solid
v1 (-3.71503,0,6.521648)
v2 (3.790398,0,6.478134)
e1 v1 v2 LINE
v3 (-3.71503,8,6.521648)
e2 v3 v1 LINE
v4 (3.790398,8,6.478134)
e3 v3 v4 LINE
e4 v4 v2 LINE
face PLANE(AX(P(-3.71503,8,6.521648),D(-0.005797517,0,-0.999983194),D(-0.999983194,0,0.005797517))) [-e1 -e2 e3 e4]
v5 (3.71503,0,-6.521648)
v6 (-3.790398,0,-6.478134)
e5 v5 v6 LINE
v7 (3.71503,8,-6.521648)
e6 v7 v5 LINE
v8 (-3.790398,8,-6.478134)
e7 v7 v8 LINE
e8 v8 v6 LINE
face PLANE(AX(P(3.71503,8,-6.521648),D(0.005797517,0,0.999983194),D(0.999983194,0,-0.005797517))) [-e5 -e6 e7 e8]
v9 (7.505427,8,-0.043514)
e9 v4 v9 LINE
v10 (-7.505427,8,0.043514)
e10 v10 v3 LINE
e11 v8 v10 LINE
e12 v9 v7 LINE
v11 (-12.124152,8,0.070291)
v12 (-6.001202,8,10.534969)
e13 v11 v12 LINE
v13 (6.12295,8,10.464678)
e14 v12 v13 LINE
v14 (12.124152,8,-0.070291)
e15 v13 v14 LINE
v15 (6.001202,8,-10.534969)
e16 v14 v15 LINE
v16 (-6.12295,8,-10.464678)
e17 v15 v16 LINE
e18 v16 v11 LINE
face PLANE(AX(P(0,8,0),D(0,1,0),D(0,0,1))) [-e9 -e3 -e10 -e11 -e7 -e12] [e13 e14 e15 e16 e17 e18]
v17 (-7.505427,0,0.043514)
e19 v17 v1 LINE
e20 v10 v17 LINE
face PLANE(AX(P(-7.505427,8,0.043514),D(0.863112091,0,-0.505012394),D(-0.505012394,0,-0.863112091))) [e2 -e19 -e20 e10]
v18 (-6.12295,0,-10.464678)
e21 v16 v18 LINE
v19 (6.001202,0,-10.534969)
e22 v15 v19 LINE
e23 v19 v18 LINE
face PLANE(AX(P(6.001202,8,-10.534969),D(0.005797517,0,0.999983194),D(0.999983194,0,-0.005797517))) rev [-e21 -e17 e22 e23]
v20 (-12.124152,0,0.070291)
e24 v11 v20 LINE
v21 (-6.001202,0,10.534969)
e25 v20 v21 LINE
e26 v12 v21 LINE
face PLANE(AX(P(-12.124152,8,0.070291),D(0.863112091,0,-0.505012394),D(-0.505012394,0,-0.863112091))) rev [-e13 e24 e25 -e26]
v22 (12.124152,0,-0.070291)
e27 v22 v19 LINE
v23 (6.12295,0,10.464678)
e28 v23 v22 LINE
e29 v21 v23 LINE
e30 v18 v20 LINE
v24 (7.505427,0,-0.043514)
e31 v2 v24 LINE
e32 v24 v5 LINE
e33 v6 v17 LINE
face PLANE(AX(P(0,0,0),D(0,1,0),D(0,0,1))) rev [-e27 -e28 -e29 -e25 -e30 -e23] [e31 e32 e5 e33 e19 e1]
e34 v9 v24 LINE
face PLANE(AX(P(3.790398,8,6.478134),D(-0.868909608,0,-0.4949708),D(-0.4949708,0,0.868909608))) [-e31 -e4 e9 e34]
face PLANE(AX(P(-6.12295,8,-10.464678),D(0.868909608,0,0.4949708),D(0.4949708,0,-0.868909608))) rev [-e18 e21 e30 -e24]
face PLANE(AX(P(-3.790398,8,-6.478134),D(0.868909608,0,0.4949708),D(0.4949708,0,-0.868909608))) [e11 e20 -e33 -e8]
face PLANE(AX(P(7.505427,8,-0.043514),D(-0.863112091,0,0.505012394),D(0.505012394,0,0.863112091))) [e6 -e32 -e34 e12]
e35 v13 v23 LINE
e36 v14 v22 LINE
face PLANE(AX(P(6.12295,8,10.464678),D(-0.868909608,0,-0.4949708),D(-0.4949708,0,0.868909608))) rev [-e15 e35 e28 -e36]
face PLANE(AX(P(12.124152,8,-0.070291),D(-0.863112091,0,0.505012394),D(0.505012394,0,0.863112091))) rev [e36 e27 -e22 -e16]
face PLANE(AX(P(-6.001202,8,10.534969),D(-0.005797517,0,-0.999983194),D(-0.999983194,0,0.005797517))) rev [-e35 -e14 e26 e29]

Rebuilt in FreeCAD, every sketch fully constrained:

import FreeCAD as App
import Part
import Sketcher

doc = App.newDocument("Part")
body = doc.addObject("PartDesign::Body", "Body")

# Sketch on XZ plane
sketch1 = doc.addObject("Sketcher::SketchObject", "Sketch")
body.addObject(sketch1)
sketch1.AttachmentSupport = (doc.XZ_Plane, [""])
sketch1.MapMode = "FlatFace"
sketch1.addGeometry([
    Part.LineSegment(App.Vector(12, 0, 0), App.Vector(6, -11, 0)),  # 0
    Part.LineSegment(App.Vector(6, -11, 0), App.Vector(-6, -10, 0)),  # 1
    Part.LineSegment(App.Vector(-6, -10, 0), App.Vector(-12, 0, 0)),  # 2
    Part.LineSegment(App.Vector(-12, 0, 0), App.Vector(-6, 11, 0)),  # 3
    Part.LineSegment(App.Vector(-6, 11, 0), App.Vector(6, 10, 0)),  # 4
    Part.LineSegment(App.Vector(6, 10, 0), App.Vector(12, 0, 0)),  # 5
    Part.LineSegment(App.Vector(8, 0, 0), App.Vector(4, 6, 0)),  # 6
    Part.LineSegment(App.Vector(4, 6, 0), App.Vector(-4, 7, 0)),  # 7
    Part.LineSegment(App.Vector(-4, 7, 0), App.Vector(-8, 0, 0)),  # 8
    Part.LineSegment(App.Vector(-8, 0, 0), App.Vector(-4, -6, 0)),  # 9
    Part.LineSegment(App.Vector(-4, -6, 0), App.Vector(4, -7, 0)),  # 10
    Part.LineSegment(App.Vector(4, -7, 0), App.Vector(8, 0, 0)),  # 11
], False)
sketch1.addConstraint([
    Sketcher.Constraint("Coincident", 0, 2, 1, 1),
    Sketcher.Constraint("Coincident", 1, 2, 2, 1),
    Sketcher.Constraint("Coincident", 2, 2, 3, 1),
    Sketcher.Constraint("Coincident", 3, 2, 4, 1),
    Sketcher.Constraint("Coincident", 4, 2, 5, 1),
    Sketcher.Constraint("Coincident", 5, 2, 0, 1),
    Sketcher.Constraint("Coincident", 6, 2, 7, 1),
    Sketcher.Constraint("Coincident", 7, 2, 8, 1),
    Sketcher.Constraint("Coincident", 8, 2, 9, 1),
    Sketcher.Constraint("Coincident", 9, 2, 10, 1),
    Sketcher.Constraint("Coincident", 10, 2, 11, 1),
    Sketcher.Constraint("Coincident", 11, 2, 6, 1),
    Sketcher.Constraint("Symmetric", 0, 2, 3, 2, -1, 1),
    Sketcher.Constraint("Symmetric", 1, 2, 4, 2, -1, 1),
    Sketcher.Constraint("Symmetric", 2, 2, 5, 2, -1, 1),
    Sketcher.Constraint("Symmetric", 6, 2, 9, 2, -1, 1),
    Sketcher.Constraint("Symmetric", 7, 2, 10, 2, -1, 1),
    Sketcher.Constraint("Symmetric", 8, 2, 11, 2, -1, 1),
    Sketcher.Constraint("Parallel", 5, 6),
    Sketcher.Constraint("Parallel", 4, 7),
    Sketcher.Constraint("Parallel", 3, 8),
    Sketcher.Constraint("Equal", 0, 1),
    Sketcher.Constraint("Equal", 1, 2),
    Sketcher.Constraint("Equal", 6, 7),
    Sketcher.Constraint("Equal", 7, 8),
    Sketcher.Constraint("DistanceX", 2, 2, 4, 2, 18.247102),
    Sketcher.Constraint("DistanceX", 1, 2, 4, 2, 12.2459),
    Sketcher.Constraint("DistanceX", 3, 2, 6, 2, 9.7916),
    Sketcher.Constraint("DistanceY", 0, 2, -1, 1, 10.534969),
    Sketcher.Constraint("DistanceY", -1, 1, 2, 2, 0.070291),
])
pad1 = doc.addObject("PartDesign::Pad", "Pad")
body.addObject(pad1)
pad1.Profile = sketch1
pad1.Length = 8
pad1.Reversed = True

doc.recompute()
